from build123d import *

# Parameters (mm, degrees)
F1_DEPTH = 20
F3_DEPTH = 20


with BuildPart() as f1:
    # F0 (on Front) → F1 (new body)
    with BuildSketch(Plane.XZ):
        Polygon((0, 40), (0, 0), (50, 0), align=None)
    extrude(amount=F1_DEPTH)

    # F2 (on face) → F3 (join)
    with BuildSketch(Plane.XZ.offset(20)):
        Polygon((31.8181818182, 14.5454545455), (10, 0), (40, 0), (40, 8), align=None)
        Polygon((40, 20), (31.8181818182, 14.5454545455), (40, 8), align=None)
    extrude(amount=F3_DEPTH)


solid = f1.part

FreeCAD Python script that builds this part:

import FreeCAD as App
import Part
import Sketcher
from FreeCAD import Vector
Q = App.Units.Quantity

doc = App.newDocument("Part")
body = doc.addObject("PartDesign::Body", "Body")

# Sketch on XZ plane
sketch1 = body.newObject("Sketcher::SketchObject", "Sketch")
sketch1.AttachmentSupport = (doc.getObject("XZ_Plane"), [""])
sketch1.MapMode = "FlatFace"
sketch1.addGeometry(Part.LineSegment(Vector(0, 40, 0), Vector(0, 0, 0)), False)
sketch1.addGeometry(Part.LineSegment(Vector(0, 0, 0), Vector(50, 0, 0)), False)
sketch1.addGeometry(Part.LineSegment(Vector(50, 0, 0), Vector(0, 40, 0)), False)
sketch1.addConstraint(Sketcher.Constraint("Coincident", 0, 2, 1, 1))
sketch1.addConstraint(Sketcher.Constraint("Coincident", 1, 2, 2, 1))
sketch1.addConstraint(Sketcher.Constraint("Coincident", 2, 2, 0, 1))
sketch1.addConstraint(Sketcher.Constraint("Vertical", 0))
sketch1.addConstraint(Sketcher.Constraint("Horizontal", 1))
sketch1.addConstraint(Sketcher.Constraint("Coincident", 0, 2, -1, 1))
sketch1.addConstraint(Sketcher.Constraint("DistanceX", 1, 1, 1, 2, Q("50 mm")))
sketch1.addConstraint(Sketcher.Constraint("DistanceY", 0, 2, 0, 1, Q("40 mm")))
pad1 = body.newObject("PartDesign::Pad", "Pad")
pad1.Profile = sketch1
pad1.Length = 20

# Sketch on XZ plane
sketch2 = body.newObject("Sketcher::SketchObject", "Sketch001")
sketch2.AttachmentSupport = (doc.getObject("XZ_Plane"), [""])
sketch2.MapMode = "FlatFace"
sketch2.AttachmentOffset = App.Placement(Vector(0, 0, 20), App.Rotation())
sketch2.addGeometry(Part.LineSegment(Vector(31.818182, 14.545455, 0), Vector(10, 0, 0)), False)
sketch2.addGeometry(Part.LineSegment(Vector(10, 0, 0), Vector(40, 0, 0)), False)
sketch2.addGeometry(Part.LineSegment(Vector(40, 0, 0), Vector(40, 20, 0)), False)
sketch2.addGeometry(Part.LineSegment(Vector(40, 20, 0), Vector(31.818182, 14.545455, 0)), False)
sketch2.addConstraint(Sketcher.Constraint("Coincident", 0, 2, 1, 1))
sketch2.addConstraint(Sketcher.Constraint("Coincident", 1, 2, 2, 1))
sketch2.addConstraint(Sketcher.Constraint("Coincident", 2, 2, 3, 1))
sketch2.addConstraint(Sketcher.Constraint("Coincident", 3, 2, 0, 1))
sketch2.addConstraint(Sketcher.Constraint("Horizontal", 1))
sketch2.addConstraint(Sketcher.Constraint("Vertical", 2))
sketch2.addConstraint(Sketcher.Constraint("PointOnObject", 0, 2, -1))
sketch2.addConstraint(Sketcher.Constraint("Parallel", 0, 3))
sketch2.addConstraint(Sketcher.Constraint("DistanceX", 1, 1, 1, 2, Q("30 mm")))
sketch2.addConstraint(Sketcher.Constraint("DistanceY", 2, 1, 2, 2, Q("20 mm")))
sketch2.addConstraint(Sketcher.Constraint("DistanceX", -1, 1, 0, 2, Q("10 mm")))
sketch2.addConstraint(Sketcher.Constraint("Distance", 0, Q("26.222191 mm")))
pad2 = body.newObject("PartDesign::Pad", "Pad001")
pad2.Profile = sketch2
pad2.Length = 20

doc.recompute()
